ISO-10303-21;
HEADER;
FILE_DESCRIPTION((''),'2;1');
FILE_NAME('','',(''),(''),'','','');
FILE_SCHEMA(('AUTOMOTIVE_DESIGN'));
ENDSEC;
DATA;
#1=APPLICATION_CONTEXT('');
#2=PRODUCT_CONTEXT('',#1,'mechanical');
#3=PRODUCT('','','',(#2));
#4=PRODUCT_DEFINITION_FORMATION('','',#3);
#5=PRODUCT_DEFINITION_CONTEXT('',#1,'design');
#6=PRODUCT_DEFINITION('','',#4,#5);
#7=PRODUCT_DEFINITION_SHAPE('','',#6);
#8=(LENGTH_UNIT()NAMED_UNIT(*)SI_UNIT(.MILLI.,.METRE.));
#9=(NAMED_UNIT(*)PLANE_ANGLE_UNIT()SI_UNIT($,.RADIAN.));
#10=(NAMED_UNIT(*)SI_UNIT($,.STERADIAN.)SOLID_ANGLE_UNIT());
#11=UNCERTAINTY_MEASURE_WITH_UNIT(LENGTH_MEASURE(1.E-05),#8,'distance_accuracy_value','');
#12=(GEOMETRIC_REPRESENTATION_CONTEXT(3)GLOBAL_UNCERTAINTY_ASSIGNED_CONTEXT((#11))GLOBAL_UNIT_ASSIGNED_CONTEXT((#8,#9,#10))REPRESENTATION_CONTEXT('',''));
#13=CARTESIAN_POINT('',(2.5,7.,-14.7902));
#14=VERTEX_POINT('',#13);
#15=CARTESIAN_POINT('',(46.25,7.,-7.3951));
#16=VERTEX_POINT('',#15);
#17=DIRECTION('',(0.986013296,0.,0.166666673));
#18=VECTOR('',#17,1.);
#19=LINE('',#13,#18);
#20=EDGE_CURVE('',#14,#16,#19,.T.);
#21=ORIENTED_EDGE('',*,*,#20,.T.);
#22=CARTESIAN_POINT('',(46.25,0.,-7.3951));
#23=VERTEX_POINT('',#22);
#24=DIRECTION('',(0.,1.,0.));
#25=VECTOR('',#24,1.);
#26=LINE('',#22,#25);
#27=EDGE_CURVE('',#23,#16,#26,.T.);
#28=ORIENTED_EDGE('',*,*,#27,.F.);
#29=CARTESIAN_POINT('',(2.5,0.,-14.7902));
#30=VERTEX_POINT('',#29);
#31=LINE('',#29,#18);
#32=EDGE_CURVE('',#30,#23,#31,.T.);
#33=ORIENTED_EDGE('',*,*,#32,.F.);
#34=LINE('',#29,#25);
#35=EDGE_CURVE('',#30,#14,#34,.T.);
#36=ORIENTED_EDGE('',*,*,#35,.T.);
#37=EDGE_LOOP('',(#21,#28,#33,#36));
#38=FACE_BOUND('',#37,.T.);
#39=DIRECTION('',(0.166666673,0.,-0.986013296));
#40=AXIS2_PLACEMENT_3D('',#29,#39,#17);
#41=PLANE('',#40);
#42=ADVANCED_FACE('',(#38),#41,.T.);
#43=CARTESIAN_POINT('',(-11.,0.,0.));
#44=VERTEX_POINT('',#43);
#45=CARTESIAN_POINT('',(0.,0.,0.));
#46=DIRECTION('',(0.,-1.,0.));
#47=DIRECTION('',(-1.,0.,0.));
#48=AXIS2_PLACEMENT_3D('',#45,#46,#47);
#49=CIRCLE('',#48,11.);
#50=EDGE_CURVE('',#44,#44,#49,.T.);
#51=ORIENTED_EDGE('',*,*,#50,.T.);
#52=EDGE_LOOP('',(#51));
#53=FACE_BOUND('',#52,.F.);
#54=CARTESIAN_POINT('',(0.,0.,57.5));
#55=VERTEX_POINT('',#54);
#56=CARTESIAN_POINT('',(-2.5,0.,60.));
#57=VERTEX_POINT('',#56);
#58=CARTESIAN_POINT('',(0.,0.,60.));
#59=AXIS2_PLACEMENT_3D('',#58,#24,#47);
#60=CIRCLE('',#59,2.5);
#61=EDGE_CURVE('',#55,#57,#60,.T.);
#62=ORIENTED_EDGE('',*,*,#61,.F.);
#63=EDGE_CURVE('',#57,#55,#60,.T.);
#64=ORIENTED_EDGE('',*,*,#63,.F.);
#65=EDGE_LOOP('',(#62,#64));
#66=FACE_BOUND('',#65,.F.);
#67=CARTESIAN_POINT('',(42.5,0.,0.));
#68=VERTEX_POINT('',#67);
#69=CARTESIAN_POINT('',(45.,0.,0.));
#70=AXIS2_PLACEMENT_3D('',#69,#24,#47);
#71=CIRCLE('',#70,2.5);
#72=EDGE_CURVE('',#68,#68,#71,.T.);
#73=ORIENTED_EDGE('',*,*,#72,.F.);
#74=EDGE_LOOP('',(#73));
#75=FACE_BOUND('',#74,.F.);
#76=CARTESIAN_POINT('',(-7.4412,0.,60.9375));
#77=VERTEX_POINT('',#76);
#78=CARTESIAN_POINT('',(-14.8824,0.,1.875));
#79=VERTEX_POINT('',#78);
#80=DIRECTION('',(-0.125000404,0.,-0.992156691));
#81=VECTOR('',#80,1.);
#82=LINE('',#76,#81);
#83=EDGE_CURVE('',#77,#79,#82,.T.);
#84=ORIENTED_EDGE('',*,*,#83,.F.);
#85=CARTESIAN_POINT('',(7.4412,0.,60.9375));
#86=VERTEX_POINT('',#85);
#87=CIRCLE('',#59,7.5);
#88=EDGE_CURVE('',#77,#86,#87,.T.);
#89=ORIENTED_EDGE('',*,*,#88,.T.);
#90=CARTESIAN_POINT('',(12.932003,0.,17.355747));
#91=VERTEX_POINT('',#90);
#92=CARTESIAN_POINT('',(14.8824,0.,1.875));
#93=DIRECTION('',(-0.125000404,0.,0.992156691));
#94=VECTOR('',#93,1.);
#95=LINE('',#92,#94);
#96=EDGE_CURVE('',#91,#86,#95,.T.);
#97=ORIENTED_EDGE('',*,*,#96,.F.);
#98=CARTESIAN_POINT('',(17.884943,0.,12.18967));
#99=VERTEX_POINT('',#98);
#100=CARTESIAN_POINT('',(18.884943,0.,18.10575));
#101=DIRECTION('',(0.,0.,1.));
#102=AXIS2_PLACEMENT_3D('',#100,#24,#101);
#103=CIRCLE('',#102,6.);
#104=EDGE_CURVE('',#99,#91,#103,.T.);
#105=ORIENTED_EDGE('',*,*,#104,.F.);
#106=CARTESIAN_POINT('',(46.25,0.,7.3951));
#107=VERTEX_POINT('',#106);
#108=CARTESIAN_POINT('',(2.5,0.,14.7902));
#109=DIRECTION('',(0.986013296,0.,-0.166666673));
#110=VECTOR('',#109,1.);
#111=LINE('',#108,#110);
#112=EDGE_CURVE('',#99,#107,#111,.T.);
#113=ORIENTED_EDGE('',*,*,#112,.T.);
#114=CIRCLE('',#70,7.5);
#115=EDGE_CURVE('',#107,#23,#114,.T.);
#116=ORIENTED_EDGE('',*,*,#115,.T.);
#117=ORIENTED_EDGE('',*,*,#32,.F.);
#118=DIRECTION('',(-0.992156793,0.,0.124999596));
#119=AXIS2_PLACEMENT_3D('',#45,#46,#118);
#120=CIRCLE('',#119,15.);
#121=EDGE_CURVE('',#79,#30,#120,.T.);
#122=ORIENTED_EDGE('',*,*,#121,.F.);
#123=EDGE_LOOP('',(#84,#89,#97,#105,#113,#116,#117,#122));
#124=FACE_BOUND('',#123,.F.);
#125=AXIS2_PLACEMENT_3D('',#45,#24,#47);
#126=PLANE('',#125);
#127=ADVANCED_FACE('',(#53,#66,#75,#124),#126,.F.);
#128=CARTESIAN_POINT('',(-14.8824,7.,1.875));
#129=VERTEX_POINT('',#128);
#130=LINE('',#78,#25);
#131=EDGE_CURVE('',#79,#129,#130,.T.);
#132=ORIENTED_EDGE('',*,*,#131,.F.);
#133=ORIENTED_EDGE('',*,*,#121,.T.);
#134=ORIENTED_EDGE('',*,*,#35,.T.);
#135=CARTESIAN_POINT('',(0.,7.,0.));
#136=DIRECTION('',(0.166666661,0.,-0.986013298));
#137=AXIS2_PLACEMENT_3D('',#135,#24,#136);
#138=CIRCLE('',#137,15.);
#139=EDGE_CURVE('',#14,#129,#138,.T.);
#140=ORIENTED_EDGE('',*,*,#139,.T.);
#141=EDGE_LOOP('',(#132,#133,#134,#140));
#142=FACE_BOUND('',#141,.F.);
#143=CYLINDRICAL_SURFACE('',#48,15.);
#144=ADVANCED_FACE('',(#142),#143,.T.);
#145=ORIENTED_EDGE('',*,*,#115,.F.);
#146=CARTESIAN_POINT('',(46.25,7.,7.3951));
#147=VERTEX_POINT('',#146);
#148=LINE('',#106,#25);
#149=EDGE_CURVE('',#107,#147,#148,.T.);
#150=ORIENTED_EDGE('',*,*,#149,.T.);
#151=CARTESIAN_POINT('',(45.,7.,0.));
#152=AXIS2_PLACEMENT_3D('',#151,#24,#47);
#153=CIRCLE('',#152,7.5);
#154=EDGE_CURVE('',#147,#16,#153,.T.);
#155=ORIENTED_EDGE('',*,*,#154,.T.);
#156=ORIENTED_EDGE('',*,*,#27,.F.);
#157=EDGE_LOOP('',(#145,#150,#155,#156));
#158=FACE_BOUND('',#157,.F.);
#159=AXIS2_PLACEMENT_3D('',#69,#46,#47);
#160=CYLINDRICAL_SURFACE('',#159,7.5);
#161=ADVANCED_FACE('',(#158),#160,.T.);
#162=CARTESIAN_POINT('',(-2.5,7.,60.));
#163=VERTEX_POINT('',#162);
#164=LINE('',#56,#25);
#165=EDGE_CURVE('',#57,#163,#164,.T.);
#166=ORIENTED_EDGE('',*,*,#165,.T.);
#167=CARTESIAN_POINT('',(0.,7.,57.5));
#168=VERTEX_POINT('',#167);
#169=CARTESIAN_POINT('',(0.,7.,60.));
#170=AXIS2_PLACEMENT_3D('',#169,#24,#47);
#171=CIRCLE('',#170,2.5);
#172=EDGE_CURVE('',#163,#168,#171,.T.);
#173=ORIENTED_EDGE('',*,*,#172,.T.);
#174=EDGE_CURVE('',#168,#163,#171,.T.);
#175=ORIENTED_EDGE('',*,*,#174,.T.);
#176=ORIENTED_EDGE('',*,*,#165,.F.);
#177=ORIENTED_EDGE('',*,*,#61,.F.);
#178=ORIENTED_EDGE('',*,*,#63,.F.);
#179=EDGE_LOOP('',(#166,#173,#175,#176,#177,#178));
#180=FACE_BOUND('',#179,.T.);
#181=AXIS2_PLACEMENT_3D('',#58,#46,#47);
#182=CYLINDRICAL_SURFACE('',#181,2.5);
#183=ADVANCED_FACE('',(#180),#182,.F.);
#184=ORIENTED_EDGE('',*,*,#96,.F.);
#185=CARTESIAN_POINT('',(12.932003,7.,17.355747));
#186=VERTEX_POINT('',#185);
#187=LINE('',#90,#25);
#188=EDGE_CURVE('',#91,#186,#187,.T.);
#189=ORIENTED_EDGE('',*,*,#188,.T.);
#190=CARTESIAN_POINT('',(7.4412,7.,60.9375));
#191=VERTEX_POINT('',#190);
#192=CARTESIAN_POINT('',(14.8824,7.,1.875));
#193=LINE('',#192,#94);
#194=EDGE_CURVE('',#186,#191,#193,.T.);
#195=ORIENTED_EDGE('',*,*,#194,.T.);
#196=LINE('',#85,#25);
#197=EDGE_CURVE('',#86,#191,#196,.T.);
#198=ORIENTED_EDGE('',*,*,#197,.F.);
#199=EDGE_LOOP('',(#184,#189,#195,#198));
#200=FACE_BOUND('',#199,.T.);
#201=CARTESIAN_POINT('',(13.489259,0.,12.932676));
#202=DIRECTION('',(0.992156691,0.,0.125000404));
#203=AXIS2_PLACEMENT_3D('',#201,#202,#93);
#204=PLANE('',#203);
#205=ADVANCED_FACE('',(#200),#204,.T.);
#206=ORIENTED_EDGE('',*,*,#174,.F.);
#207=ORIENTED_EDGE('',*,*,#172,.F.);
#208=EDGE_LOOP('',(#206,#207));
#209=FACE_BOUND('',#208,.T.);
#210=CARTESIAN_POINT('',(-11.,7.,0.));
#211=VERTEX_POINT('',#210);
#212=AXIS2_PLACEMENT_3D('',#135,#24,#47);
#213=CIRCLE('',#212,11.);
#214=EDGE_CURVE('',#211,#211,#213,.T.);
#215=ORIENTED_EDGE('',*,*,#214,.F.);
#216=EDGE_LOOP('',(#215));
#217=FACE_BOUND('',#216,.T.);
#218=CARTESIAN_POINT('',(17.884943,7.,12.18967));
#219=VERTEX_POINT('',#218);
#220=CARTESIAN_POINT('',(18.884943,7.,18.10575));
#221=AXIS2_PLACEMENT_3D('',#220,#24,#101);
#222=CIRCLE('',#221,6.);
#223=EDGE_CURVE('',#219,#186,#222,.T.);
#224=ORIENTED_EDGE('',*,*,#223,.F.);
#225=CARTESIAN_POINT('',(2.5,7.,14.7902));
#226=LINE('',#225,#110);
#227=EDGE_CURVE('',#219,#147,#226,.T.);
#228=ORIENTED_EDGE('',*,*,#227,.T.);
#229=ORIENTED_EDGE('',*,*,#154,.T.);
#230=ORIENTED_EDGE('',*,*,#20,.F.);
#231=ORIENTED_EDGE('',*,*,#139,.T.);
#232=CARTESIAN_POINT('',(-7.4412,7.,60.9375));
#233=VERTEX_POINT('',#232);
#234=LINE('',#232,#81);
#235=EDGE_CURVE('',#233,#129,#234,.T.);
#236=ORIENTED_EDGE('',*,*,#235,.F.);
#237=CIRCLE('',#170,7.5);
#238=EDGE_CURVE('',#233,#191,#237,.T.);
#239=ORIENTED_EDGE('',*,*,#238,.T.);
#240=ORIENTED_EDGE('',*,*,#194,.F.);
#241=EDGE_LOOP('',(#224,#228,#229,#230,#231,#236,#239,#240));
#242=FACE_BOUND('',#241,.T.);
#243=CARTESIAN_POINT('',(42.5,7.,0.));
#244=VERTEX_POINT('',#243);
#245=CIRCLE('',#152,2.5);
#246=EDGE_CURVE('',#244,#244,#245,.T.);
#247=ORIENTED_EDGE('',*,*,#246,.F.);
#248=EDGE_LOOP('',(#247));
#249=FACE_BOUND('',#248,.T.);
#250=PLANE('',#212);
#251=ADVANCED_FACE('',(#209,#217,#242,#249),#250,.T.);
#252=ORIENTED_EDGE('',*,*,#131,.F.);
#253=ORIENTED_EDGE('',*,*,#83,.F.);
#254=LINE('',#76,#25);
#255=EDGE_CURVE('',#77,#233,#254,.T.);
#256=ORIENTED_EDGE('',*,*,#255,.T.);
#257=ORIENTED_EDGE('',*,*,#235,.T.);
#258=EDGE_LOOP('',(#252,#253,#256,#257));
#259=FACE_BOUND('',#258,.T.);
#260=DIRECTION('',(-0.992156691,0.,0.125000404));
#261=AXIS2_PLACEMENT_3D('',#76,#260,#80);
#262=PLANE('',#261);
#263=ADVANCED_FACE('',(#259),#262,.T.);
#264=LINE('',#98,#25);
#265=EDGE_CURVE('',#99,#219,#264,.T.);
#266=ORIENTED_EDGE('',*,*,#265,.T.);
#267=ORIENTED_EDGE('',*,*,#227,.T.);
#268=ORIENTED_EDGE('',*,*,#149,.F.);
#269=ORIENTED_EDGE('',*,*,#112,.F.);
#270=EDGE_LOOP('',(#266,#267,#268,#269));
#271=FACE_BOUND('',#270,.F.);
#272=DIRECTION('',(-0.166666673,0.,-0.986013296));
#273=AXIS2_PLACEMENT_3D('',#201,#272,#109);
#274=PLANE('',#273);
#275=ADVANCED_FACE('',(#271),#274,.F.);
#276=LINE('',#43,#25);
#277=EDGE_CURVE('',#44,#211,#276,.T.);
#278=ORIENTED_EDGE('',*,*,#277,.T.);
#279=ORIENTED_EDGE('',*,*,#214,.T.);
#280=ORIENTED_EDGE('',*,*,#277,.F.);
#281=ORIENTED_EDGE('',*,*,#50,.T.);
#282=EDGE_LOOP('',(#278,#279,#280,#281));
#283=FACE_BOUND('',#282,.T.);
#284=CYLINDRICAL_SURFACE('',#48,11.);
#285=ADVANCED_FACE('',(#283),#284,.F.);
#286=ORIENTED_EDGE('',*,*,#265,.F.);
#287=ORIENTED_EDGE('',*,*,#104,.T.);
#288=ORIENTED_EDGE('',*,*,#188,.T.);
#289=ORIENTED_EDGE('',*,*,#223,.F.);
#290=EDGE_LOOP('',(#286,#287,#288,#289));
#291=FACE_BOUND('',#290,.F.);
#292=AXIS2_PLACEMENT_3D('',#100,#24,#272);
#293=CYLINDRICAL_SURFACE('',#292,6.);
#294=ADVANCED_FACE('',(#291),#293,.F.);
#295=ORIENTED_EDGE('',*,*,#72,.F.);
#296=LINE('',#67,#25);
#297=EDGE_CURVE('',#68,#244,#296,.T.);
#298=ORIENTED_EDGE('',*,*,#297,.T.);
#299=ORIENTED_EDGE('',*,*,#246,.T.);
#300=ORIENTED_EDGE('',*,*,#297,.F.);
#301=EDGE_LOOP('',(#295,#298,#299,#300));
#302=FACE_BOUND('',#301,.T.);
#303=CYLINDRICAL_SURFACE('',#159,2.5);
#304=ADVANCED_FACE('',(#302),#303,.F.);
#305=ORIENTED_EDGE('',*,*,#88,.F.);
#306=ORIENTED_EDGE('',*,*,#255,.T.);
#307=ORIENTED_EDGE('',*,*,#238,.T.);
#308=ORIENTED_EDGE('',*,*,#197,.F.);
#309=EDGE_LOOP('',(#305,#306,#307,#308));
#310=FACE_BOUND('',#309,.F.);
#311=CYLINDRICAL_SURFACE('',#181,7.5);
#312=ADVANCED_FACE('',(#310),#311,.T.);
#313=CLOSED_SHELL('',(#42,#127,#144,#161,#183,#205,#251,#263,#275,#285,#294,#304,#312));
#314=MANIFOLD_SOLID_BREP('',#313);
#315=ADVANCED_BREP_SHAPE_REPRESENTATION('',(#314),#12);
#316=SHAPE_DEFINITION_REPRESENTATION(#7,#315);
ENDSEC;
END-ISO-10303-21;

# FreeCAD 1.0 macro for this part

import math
import FreeCAD as App
import Part
import Sketcher
from FreeCAD import Vector


def edges_at(feature, points):
    """Names of the edges that pass closest to the given points."""
    edges = feature.Shape.Edges
    near = lambda p: min(range(len(edges)), key=lambda i: edges[i].distToShape(Part.Vertex(*p))[0])
    return sorted({f"Edge{near(p) + 1}" for p in points})

doc = App.newDocument("Part")
body = doc.addObject("PartDesign::Body", "Body")

# Sketch on XZ plane
sketch1 = body.newObject("Sketcher::SketchObject", "Sketch")
sketch1.AttachmentSupport = (doc.getObject("XZ_Plane"), [""])
sketch1.MapMode = "FlatFace"
sketch1.addGeometry([
    Part.LineSegment(Vector(-14.9, 1.9, 0), Vector(-7.4, 60.9, 0)),  # 0
    Part.ArcOfCircle(Part.Circle(Vector(0, 60, 0), Vector(0, 0, 1), 7.5), math.radians(7), math.radians(173)),  # 1
    Part.LineSegment(Vector(7.4, 60.9, 0), Vector(13.5, 12.9, 0)),  # 2
    Part.LineSegment(Vector(13.5, 12.9, 0), Vector(46.2, 7.4, 0)),  # 3
    Part.ArcOfCircle(Part.Circle(Vector(45, 0, 0), Vector(0, 0, 1), 7.5), math.radians(-80), math.radians(80)),  # 4
    Part.LineSegment(Vector(46.2, -7.4, 0), Vector(2.5, -14.8, 0)),  # 5
    Part.ArcOfCircle(Part.Circle(Vector(0, 0, 0), Vector(0, 0, 1), 15), math.radians(173), math.radians(280)),  # 6
    Part.Circle(Vector(0, 0, 0), Vector(0, 0, 1), 11),  # 7
    Part.Circle(Vector(0, 60, 0), Vector(0, 0, 1), 2.5),  # 8
    Part.Circle(Vector(45, 0, 0), Vector(0, 0, 1), 2.5),  # 9
], False)
sketch1.addConstraint([
    Sketcher.Constraint("Tangent", 0, 2, 1, 2),
    Sketcher.Constraint("Tangent", 1, 1, 2, 1),
    Sketcher.Constraint("Coincident", 2, 2, 3, 1),
    Sketcher.Constraint("Tangent", 3, 2, 4, 2),
    Sketcher.Constraint("Tangent", 4, 1, 5, 1),
    Sketcher.Constraint("Tangent", 5, 2, 6, 2),
    Sketcher.Constraint("Tangent", 6, 1, 0, 1),
    Sketcher.Constraint("Coincident", 6, 3, -1, 1),
    Sketcher.Constraint("Coincident", 7, 3, -1, 1),
    Sketcher.Constraint("Coincident", 8, 3, 1, 3),
    Sketcher.Constraint("Coincident", 9, 3, 4, 3),
    Sketcher.Constraint("Equal", 1, 4),
    Sketcher.Constraint("Equal", 8, 9),
    Sketcher.Constraint("Symmetric", 0, 2, 1, 1, -2),
    Sketcher.Constraint("Symmetric", 3, 2, 4, 1, -1),
    Sketcher.Constraint("Diameter", 7, 22.0),
    Sketcher.Constraint("Diameter", 8, 5.0),
    Sketcher.Constraint("Radius", 6, 15.0),
    Sketcher.Constraint("Radius", 1, 7.5),
    Sketcher.Constraint("DistanceY", -1, 1, 1, 3, 60.0),
    Sketcher.Constraint("DistanceX", -1, 1, 4, 3, 45.0),
])
pad1 = body.newObject("PartDesign::Pad", "Pad")
pad1.Profile = sketch1
pad1.Length = 7
pad1.Reversed = True
doc.recompute()

fillet = body.newObject("PartDesign::Fillet", "Fillet")
fillet.Base = (pad1, edges_at(pad1, [(13.489, 3.5, 12.933)]))
fillet.Radius = 6

doc.recompute()
